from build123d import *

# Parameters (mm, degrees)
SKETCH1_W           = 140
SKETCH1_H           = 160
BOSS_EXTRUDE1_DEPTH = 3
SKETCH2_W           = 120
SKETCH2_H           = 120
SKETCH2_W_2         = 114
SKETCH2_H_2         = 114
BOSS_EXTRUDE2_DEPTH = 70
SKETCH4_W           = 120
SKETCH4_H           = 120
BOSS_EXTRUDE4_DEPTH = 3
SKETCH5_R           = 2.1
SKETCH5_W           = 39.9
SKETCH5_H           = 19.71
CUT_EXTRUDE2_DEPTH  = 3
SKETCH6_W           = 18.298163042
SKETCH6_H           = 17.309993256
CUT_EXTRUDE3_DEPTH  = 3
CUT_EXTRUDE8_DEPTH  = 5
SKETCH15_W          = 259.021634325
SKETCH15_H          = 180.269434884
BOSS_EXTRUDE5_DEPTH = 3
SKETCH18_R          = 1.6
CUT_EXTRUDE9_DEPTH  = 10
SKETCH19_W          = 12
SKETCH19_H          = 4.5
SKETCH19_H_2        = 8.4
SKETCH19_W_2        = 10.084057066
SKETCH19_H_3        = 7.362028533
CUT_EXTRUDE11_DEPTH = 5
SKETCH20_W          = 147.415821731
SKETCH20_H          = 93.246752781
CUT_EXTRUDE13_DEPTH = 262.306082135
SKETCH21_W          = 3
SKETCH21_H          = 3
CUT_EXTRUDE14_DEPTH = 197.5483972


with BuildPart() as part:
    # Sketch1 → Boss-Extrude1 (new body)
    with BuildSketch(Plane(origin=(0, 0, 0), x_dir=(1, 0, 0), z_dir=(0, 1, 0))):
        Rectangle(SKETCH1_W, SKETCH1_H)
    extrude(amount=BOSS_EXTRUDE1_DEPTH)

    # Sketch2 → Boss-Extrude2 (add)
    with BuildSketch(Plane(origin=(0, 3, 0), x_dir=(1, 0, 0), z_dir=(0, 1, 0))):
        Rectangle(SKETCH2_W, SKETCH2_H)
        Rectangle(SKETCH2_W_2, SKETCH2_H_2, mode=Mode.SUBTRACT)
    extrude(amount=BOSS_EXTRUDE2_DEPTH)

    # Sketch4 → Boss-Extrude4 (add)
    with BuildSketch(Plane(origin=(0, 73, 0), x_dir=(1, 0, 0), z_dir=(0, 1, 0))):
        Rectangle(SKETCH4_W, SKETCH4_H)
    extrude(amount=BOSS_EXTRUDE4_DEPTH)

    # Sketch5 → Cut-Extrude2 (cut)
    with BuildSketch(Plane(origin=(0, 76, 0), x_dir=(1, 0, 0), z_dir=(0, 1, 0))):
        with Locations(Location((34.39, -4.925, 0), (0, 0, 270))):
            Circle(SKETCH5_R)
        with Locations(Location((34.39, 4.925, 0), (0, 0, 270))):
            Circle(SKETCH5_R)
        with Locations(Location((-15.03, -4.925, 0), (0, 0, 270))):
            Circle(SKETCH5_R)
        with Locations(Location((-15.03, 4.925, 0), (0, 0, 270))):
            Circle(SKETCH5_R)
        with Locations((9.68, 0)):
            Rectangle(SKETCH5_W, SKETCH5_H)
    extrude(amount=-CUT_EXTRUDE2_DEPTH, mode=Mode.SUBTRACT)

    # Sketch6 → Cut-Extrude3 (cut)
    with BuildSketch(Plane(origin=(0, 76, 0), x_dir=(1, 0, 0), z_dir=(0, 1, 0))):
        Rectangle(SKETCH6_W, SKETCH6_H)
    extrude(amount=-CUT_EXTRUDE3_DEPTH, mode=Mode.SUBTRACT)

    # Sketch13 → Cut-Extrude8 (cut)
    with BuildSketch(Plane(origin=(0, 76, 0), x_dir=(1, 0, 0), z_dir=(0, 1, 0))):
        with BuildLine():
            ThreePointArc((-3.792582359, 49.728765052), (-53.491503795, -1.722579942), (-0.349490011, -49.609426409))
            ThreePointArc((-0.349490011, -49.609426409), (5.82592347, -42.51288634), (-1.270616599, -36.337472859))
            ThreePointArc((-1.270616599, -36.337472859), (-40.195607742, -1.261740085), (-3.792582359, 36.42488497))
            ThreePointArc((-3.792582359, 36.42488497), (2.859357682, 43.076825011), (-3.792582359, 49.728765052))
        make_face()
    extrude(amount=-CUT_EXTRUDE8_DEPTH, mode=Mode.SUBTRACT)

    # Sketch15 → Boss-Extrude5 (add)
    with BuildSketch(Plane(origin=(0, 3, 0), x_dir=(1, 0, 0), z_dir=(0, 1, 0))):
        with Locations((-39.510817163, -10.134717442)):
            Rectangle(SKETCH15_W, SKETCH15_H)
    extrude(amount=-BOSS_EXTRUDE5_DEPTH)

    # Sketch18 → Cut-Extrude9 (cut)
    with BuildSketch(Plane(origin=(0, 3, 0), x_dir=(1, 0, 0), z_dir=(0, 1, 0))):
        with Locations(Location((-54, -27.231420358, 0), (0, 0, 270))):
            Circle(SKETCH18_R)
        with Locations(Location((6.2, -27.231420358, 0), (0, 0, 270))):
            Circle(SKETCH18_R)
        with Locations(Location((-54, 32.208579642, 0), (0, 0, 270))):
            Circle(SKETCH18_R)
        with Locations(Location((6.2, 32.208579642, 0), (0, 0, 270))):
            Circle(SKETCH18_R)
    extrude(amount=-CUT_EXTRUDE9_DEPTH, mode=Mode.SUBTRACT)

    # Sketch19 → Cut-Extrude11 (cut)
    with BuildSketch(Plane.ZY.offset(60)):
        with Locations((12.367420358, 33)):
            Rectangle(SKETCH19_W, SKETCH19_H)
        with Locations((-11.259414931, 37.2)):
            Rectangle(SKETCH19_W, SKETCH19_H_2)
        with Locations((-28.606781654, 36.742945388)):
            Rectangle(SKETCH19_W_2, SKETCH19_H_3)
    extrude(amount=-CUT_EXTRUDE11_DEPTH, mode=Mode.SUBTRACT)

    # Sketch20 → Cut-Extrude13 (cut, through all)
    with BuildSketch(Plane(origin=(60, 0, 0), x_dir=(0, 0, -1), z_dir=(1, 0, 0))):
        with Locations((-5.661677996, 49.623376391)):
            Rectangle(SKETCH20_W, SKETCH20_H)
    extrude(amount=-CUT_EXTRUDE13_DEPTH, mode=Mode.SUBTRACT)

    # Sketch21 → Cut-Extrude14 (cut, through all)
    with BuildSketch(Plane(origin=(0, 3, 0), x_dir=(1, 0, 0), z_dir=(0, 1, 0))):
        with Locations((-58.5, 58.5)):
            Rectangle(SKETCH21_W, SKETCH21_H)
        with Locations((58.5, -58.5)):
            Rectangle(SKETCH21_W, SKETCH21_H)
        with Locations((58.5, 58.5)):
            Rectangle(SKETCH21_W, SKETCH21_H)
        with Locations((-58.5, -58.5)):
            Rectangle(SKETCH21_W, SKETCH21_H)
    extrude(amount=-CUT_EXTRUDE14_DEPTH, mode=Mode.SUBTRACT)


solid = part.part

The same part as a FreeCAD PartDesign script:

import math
import FreeCAD as App
import Part
import Sketcher
Q = App.Units.Quantity


def add_polygon(sketch, points):
    """Adds a closed chain of lines whose ends are joined by coincident constraints."""
    first, n = sketch.GeometryCount, len(points)
    for a, b in zip(points, points[1:] + points[:1]):
        sketch.addGeometry(Part.LineSegment(App.Vector(*a, 0), App.Vector(*b, 0)), False)
    for i in range(n):
        sketch.addConstraint(Sketcher.Constraint("Coincident", first + i, 2, first + (i + 1) % n, 1))

doc = App.newDocument("Part")
params = doc.addObject("Spreadsheet::Sheet", "Params")
for row, (alias, value) in enumerate([
    ("sketch1_width", "140 mm"),
    ("sketch1_height", "160 mm"),
    ("pad1_length", "3 mm"),
    ("sketch2_width", "120 mm"),
    ("sketch2_width2", "114 mm"),
    ("pad2_length", "70 mm"),
    ("sketch3_width", "120 mm"),
    ("pad3_length", "3 mm"),
    ("sketch4_diameter", "4.2 mm"),
    ("sketch4_width", "39.9 mm"),
    ("sketch4_height", "19.71 mm"),
    ("pocket1_length", "3 mm"),
    ("pocket2_length", "3 mm"),
    ("pocket3_length", "5 mm"),
    ("pad4_length", "3 mm"),
    ("sketch8_diameter", "3.2 mm"),
    ("pocket4_length", "10 mm"),
    ("sketch9_height", "12 mm"),
    ("sketch9_width", "4.5 mm"),
    ("sketch9_width2", "8.4 mm"),
    ("pocket5_length", "5 mm"),
    ("sketch11_width", "3 mm"),
], start=1):
    params.set(f"A{row}", alias)
    params.set(f"B{row}", "=" + value)
    params.setAlias(f"B{row}", alias)

body = doc.addObject("PartDesign::Body", "Body")

sketch1 = body.newObject("Sketcher::SketchObject", "Sketch")
sketch1.AttachmentSupport = (doc.getObject("XZ_Plane"), [""])
sketch1.MapMode = "FlatFace"
add_polygon(sketch1, [(-70, -80), (-70, 80), (70, 80), (70, -80)])
sketch1.addConstraint(Sketcher.Constraint("Vertical", 0))
sketch1.addConstraint(Sketcher.Constraint("Horizontal", 1))
sketch1.addConstraint(Sketcher.Constraint("Vertical", 2))
sketch1.addConstraint(Sketcher.Constraint("Horizontal", 3))
sketch1.addConstraint(Sketcher.Constraint("Symmetric", 0, 2, 2, 2, -1, 1))
sketch1.addConstraint(Sketcher.Constraint("DistanceX", 1, 1, 1, 2, Q("140 mm")))
sketch1.addConstraint(Sketcher.Constraint("DistanceY", 0, 1, 0, 2, Q("160 mm")))
sketch1.setExpression("Constraints[9]", "Params.sketch1_width")
sketch1.setExpression("Constraints[10]", "Params.sketch1_height")
pad1 = body.newObject("PartDesign::Pad", "Pad")
pad1.Profile = sketch1
pad1.setExpression("Length", "Params.pad1_length")
pad1.Reversed = True

sketch2 = body.newObject("Sketcher::SketchObject", "Sketch001")
sketch2.AttachmentSupport = (doc.getObject("XZ_Plane"), [""])
sketch2.MapMode = "FlatFace"
sketch2.AttachmentOffset = App.Placement(App.Vector(0, 0, -3), App.Rotation())
add_polygon(sketch2, [(-60, -60), (-60, 60), (60, 60), (60, -60)])
add_polygon(sketch2, [(57, 57), (-57, 57), (-57, -57), (57, -57)])
sketch2.addConstraint(Sketcher.Constraint("Vertical", 0))
sketch2.addConstraint(Sketcher.Constraint("Horizontal", 1))
sketch2.addConstraint(Sketcher.Constraint("Vertical", 2))
sketch2.addConstraint(Sketcher.Constraint("Horizontal", 3))
sketch2.addConstraint(Sketcher.Constraint("Horizontal", 4))
sketch2.addConstraint(Sketcher.Constraint("Vertical", 5))
sketch2.addConstraint(Sketcher.Constraint("Horizontal", 6))
sketch2.addConstraint(Sketcher.Constraint("Vertical", 7))
sketch2.addConstraint(Sketcher.Constraint("Symmetric", 0, 2, 2, 2, -1, 1))
sketch2.addConstraint(Sketcher.Constraint("Symmetric", 4, 2, 6, 2, -1, 1))
sketch2.addConstraint(Sketcher.Constraint("Equal", 3, 0))
sketch2.addConstraint(Sketcher.Constraint("Equal", 6, 5))
sketch2.addConstraint(Sketcher.Constraint("DistanceX", 1, 1, 1, 2, Q("120 mm")))
sketch2.addConstraint(Sketcher.Constraint("DistanceX", 4, 2, 4, 1, Q("114 mm")))
sketch2.setExpression("Constraints[20]", "Params.sketch2_width")
sketch2.setExpression("Constraints[21]", "Params.sketch2_width2")
pad2 = body.newObject("PartDesign::Pad", "Pad001")
pad2.Profile = sketch2
pad2.setExpression("Length", "Params.pad2_length")
pad2.Reversed = True

sketch3 = body.newObject("Sketcher::SketchObject", "Sketch002")
sketch3.AttachmentSupport = (doc.getObject("XZ_Plane"), [""])
sketch3.MapMode = "FlatFace"
sketch3.AttachmentOffset = App.Placement(App.Vector(0, 0, -73), App.Rotation())
add_polygon(sketch3, [(-60, -60), (-60, 60), (60, 60), (60, -60)])
sketch3.addConstraint(Sketcher.Constraint("Vertical", 0))
sketch3.addConstraint(Sketcher.Constraint("Horizontal", 1))
sketch3.addConstraint(Sketcher.Constraint("Vertical", 2))
sketch3.addConstraint(Sketcher.Constraint("Horizontal", 3))
sketch3.addConstraint(Sketcher.Constraint("Symmetric", 0, 2, 2, 2, -1, 1))
sketch3.addConstraint(Sketcher.Constraint("Equal", 3, 0))
sketch3.addConstraint(Sketcher.Constraint("DistanceX", 1, 1, 1, 2, Q("120 mm")))
sketch3.setExpression("Constraints[10]", "Params.sketch3_width")
pad3 = body.newObject("PartDesign::Pad", "Pad002")
pad3.Profile = sketch3
pad3.setExpression("Length", "Params.pad3_length")
pad3.Reversed = True

sketch4 = body.newObject("Sketcher::SketchObject", "Sketch003")
sketch4.AttachmentSupport = (doc.getObject("XZ_Plane"), [""])
sketch4.MapMode = "FlatFace"
sketch4.AttachmentOffset = App.Placement(App.Vector(0, 0, -76), App.Rotation())
sketch4.addGeometry(Part.Circle(App.Vector(34.4, 4.9, 0), App.Vector(0, 0, 1), 2.1), False)
sketch4.addGeometry(Part.Circle(App.Vector(34.4, -4.9, 0), App.Vector(0, 0, 1), 2.1), False)
sketch4.addGeometry(Part.Circle(App.Vector(-15, 4.9, 0), App.Vector(0, 0, 1), 2.1), False)
sketch4.addGeometry(Part.Circle(App.Vector(-15, -4.9, 0), App.Vector(0, 0, 1), 2.1), False)
add_polygon(sketch4, [(-10.3, -9.9), (-10.3, 9.9), (29.6, 9.9), (29.6, -9.9)])
sketch4.addConstraint(Sketcher.Constraint("Vertical", 4))
sketch4.addConstraint(Sketcher.Constraint("Horizontal", 5))
sketch4.addConstraint(Sketcher.Constraint("Vertical", 6))
sketch4.addConstraint(Sketcher.Constraint("Horizontal", 7))
sketch4.addConstraint(Sketcher.Constraint("Equal", 0, 1))
sketch4.addConstraint(Sketcher.Constraint("Equal", 1, 2))
sketch4.addConstraint(Sketcher.Constraint("Equal", 2, 3))
sketch4.addConstraint(Sketcher.Constraint("Symmetric", 0, 3, 1, 3, -1))
sketch4.addConstraint(Sketcher.Constraint("Symmetric", 2, 3, 3, 3, -1))
sketch4.addConstraint(Sketcher.Constraint("Horizontal", 0, 3, 2, 3))
sketch4.addConstraint(Sketcher.Constraint("Diameter", 0, Q("4.2 mm")))
sketch4.addConstraint(Sketcher.Constraint("DistanceX", 5, 1, 5, 2, Q("39.9 mm")))
sketch4.addConstraint(Sketcher.Constraint("DistanceY", 4, 1, 4, 2, Q("19.71 mm")))
sketch4.addConstraint(Sketcher.Constraint("DistanceX", -1, 1, 0, 3, Q("34.39 mm")))
sketch4.addConstraint(Sketcher.Constraint("DistanceX", 2, 3, -1, 1, Q("15.03 mm")))
sketch4.addConstraint(Sketcher.Constraint("DistanceX", 4, 2, -1, 1, Q("10.27 mm")))
sketch4.addConstraint(Sketcher.Constraint("DistanceY", 1, 3, 0, 3, Q("9.85 mm")))
sketch4.addConstraint(Sketcher.Constraint("DistanceY", 2, 3, 4, 2, Q("4.93 mm")))
sketch4.setExpression("Constraints[14]", "Params.sketch4_diameter")
sketch4.setExpression("Constraints[15]", "Params.sketch4_width")
sketch4.setExpression("Constraints[16]", "Params.sketch4_height")
pocket1 = body.newObject("PartDesign::Pocket", "Pocket")
pocket1.Profile = sketch4
pocket1.setExpression("Length", "Params.pocket1_length")
pocket1.Reversed = True

sketch5 = body.newObject("Sketcher::SketchObject", "Sketch004")
sketch5.AttachmentSupport = (doc.getObject("XZ_Plane"), [""])
sketch5.MapMode = "FlatFace"
sketch5.AttachmentOffset = App.Placement(App.Vector(0, 0, -76), App.Rotation())
add_polygon(sketch5, [(-9, -9), (-9, 9), (9, 9), (9, -9)])
sketch5.addConstraint(Sketcher.Constraint("Vertical", 0))
sketch5.addConstraint(Sketcher.Constraint("Horizontal", 1))
sketch5.addConstraint(Sketcher.Constraint("Vertical", 2))
sketch5.addConstraint(Sketcher.Constraint("Horizontal", 3))
sketch5.addConstraint(Sketcher.Constraint("Symmetric", 0, 2, 2, 2, -1, 1))
sketch5.addConstraint(Sketcher.Constraint("DistanceX", 1, 1, 1, 2, Q("18.298163 mm")))
sketch5.addConstraint(Sketcher.Constraint("DistanceY", 0, 1, 0, 2, Q("17.309993 mm")))
pocket2 = body.newObject("PartDesign::Pocket", "Pocket001")
pocket2.Profile = sketch5
pocket2.setExpression("Length", "Params.pocket2_length")
pocket2.Reversed = True

sketch6 = body.newObject("Sketcher::SketchObject", "Sketch005")
sketch6.AttachmentSupport = (doc.getObject("XZ_Plane"), [""])
sketch6.MapMode = "FlatFace"
sketch6.AttachmentOffset = App.Placement(App.Vector(0, 0, -76), App.Rotation())
sketch6.addGeometry(Part.ArcOfCircle(Part.Circle(App.Vector(-4, 0, 0), App.Vector(0, 0, 1), 50), math.radians(86), math.radians(270)), False)
sketch6.addGeometry(Part.ArcOfCircle(Part.Circle(App.Vector(-1, 43, 0), App.Vector(0, 0, 1), 7), math.radians(-94), math.radians(86)), False)
sketch6.addGeometry(Part.ArcOfCircle(Part.Circle(App.Vector(-4, 0, 0), App.Vector(0, 0, 1), 36), math.radians(86), math.radians(270)), False)
sketch6.addGeometry(Part.ArcOfCircle(Part.Circle(App.Vector(-4, -43, 0), App.Vector(0, 0, 1), 7), math.radians(-90), math.radians(90)), False)
sketch6.addConstraint(Sketcher.Constraint("Tangent", 0, 1, 1, 2))
sketch6.addConstraint(Sketcher.Constraint("Tangent", 1, 1, 2, 1))
sketch6.addConstraint(Sketcher.Constraint("Tangent", 2, 2, 3, 2))
sketch6.addConstraint(Sketcher.Constraint("Tangent", 3, 1, 0, 2))
sketch6.addConstraint(Sketcher.Constraint("Coincident", 2, 3, 0, 3))
sketch6.addConstraint(Sketcher.Constraint("PointOnObject", 0, 3, -1))
sketch6.addConstraint(Sketcher.Constraint("Vertical", 2, 3, 3, 3))
sketch6.addConstraint(Sketcher.Constraint("Radius", 1, Q("6.65194 mm")))
sketch6.addConstraint(Sketcher.Constraint("Radius", 0, Q("49.728765 mm")))
sketch6.addConstraint(Sketcher.Constraint("DistanceY", -1, 1, 1, 3, Q("42.97345 mm")))
sketch6.addConstraint(Sketcher.Constraint("DistanceX", 0, 1, -1, 1, Q("0.34949 mm")))
pocket3 = body.newObject("PartDesign::Pocket", "Pocket002")
pocket3.Profile = sketch6
pocket3.setExpression("Length", "Params.pocket3_length")
pocket3.Reversed = True

sketch7 = body.newObject("Sketcher::SketchObject", "Sketch006")
sketch7.AttachmentSupport = (doc.getObject("XZ_Plane"), [""])
sketch7.MapMode = "FlatFace"
sketch7.AttachmentOffset = App.Placement(App.Vector(0, 0, -3), App.Rotation())
add_polygon(sketch7, [(-169, -80), (-169, 100), (90, 100), (90, -80)])
sketch7.addConstraint(Sketcher.Constraint("Vertical", 0))
sketch7.addConstraint(Sketcher.Constraint("Horizontal", 1))
sketch7.addConstraint(Sketcher.Constraint("Vertical", 2))
sketch7.addConstraint(Sketcher.Constraint("Horizontal", 3))
sketch7.addConstraint(Sketcher.Constraint("DistanceX", -1, 1, 1, 2, Q("90 mm")))
sketch7.addConstraint(Sketcher.Constraint("DistanceY", 2, 2, -1, 1, Q("80 mm")))
sketch7.addConstraint(Sketcher.Constraint("DistanceX", 1, 1, 1, 2, Q("259.021634 mm")))
sketch7.addConstraint(Sketcher.Constraint("DistanceY", 0, 1, 0, 2, Q("180.269435 mm")))
pad4 = body.newObject("PartDesign::Pad", "Pad003")
pad4.Profile = sketch7
pad4.setExpression("Length", "Params.pad4_length")

sketch8 = body.newObject("Sketcher::SketchObject", "Sketch007")
sketch8.AttachmentSupport = (doc.getObject("XZ_Plane"), [""])
sketch8.MapMode = "FlatFace"
sketch8.AttachmentOffset = App.Placement(App.Vector(0, 0, -3), App.Rotation())
sketch8.addGeometry(Part.Circle(App.Vector(-54, 27.2, 0), App.Vector(0, 0, 1), 1.6), False)
sketch8.addGeometry(Part.Circle(App.Vector(6.2, 27.2, 0), App.Vector(0, 0, 1), 1.6), False)
sketch8.addGeometry(Part.Circle(App.Vector(-54, -32.2, 0), App.Vector(0, 0, 1), 1.6), False)
sketch8.addGeometry(Part.Circle(App.Vector(6.2, -32.2, 0), App.Vector(0, 0, 1), 1.6), False)
sketch8.addConstraint(Sketcher.Constraint("Equal", 0, 1))
sketch8.addConstraint(Sketcher.Constraint("Equal", 1, 2))
sketch8.addConstraint(Sketcher.Constraint("Equal", 2, 3))
sketch8.addConstraint(Sketcher.Constraint("Horizontal", 0, 3, 1, 3))
sketch8.addConstraint(Sketcher.Constraint("Horizontal", 2, 3, 3, 3))
sketch8.addConstraint(Sketcher.Constraint("Vertical", 0, 3, 2, 3))
sketch8.addConstraint(Sketcher.Constraint("Vertical", 1, 3, 3, 3))
sketch8.addConstraint(Sketcher.Constraint("Diameter", 0, Q("3.2 mm")))
sketch8.addConstraint(Sketcher.Constraint("DistanceX", 0, 3, -1, 1, Q("54 mm")))
sketch8.addConstraint(Sketcher.Constraint("DistanceX", -1, 1, 1, 3, Q("6.2 mm")))
sketch8.addConstraint(Sketcher.Constraint("DistanceY", 2, 3, 0, 3, Q("59.44 mm")))
sketch8.addConstraint(Sketcher.Constraint("DistanceY", -1, 1, 0, 3, Q("27.23142 mm")))
sketch8.setExpression("Constraints[7]", "Params.sketch8_diameter")
pocket4 = body.newObject("PartDesign::Pocket", "Pocket003")
pocket4.Profile = sketch8
pocket4.setExpression("Length", "Params.pocket4_length")
pocket4.Reversed = True

sketch9 = body.newObject("Sketcher::SketchObject", "Sketch008")
sketch9.AttachmentSupport = (doc.getObject("YZ_Plane"), [""])
sketch9.MapMode = "FlatFace"
sketch9.AttachmentOffset = App.Placement(App.Vector(0, 0, -60), App.Rotation())
add_polygon(sketch9, [(35.2, 6.4), (30.8, 6.4), (30.8, 18.4), (35.2, 18.4)])
add_polygon(sketch9, [(41.4, -17.3), (33, -17.3), (33, -5.3), (41.4, -5.3)])
add_polygon(sketch9, [(40.4, -33.6), (33.1, -33.6), (33.1, -23.6), (40.4, -23.6)])
sketch9.addConstraint(Sketcher.Constraint("Horizontal", 0))
sketch9.addConstraint(Sketcher.Constraint("Vertical", 1))
sketch9.addConstraint(Sketcher.Constraint("Horizontal", 2))
sketch9.addConstraint(Sketcher.Constraint("Vertical", 3))
sketch9.addConstraint(Sketcher.Constraint("Horizontal", 4))
sketch9.addConstraint(Sketcher.Constraint("Vertical", 5))
sketch9.addConstraint(Sketcher.Constraint("Horizontal", 6))
sketch9.addConstraint(Sketcher.Constraint("Vertical", 7))
sketch9.addConstraint(Sketcher.Constraint("Horizontal", 8))
sketch9.addConstraint(Sketcher.Constraint("Vertical", 9))
sketch9.addConstraint(Sketcher.Constraint("Horizontal", 10))
sketch9.addConstraint(Sketcher.Constraint("Vertical", 11))
sketch9.addConstraint(Sketcher.Constraint("Equal", 3, 5))
sketch9.addConstraint(Sketcher.Constraint("DistanceY", 1, 1, 1, 2, Q("12 mm")))
sketch9.addConstraint(Sketcher.Constraint("DistanceX", 0, 2, 0, 1, Q("4.5 mm")))
sketch9.addConstraint(Sketcher.Constraint("DistanceX", 4, 2, 4, 1, Q("8.4 mm")))
sketch9.addConstraint(Sketcher.Constraint("DistanceX", -1, 1, 4, 2, Q("33 mm")))
sketch9.addConstraint(Sketcher.Constraint("DistanceX", -1, 1, 0, 2, Q("30.75 mm")))
sketch9.addConstraint(Sketcher.Constraint("DistanceX", 8, 2, 8, 1, Q("7.362029 mm")))
sketch9.addConstraint(Sketcher.Constraint("DistanceY", 9, 1, 9, 2, Q("10.084057 mm")))
sketch9.addConstraint(Sketcher.Constraint("DistanceY", -1, 1, 0, 2, Q("6.36742 mm")))
sketch9.addConstraint(Sketcher.Constraint("DistanceX", -1, 1, 8, 2, Q("33.061931 mm")))
sketch9.addConstraint(Sketcher.Constraint("DistanceY", 8, 2, -1, 1, Q("33.64881 mm")))
sketch9.addConstraint(Sketcher.Constraint("DistanceY", 9, 2, 4, 2, Q("6.305338 mm")))
sketch9.setExpression("Constraints[25]", "Params.sketch9_height")
sketch9.setExpression("Constraints[26]", "Params.sketch9_width")
sketch9.setExpression("Constraints[27]", "Params.sketch9_width2")
pocket5 = body.newObject("PartDesign::Pocket", "Pocket004")
pocket5.Profile = sketch9
pocket5.setExpression("Length", "Params.pocket5_length")
pocket5.Reversed = True

sketch10 = body.newObject("Sketcher::SketchObject", "Sketch009")
sketch10.AttachmentSupport = (doc.getObject("YZ_Plane"), [""])
sketch10.MapMode = "FlatFace"
sketch10.AttachmentOffset = App.Placement(App.Vector(0, 0, 60), App.Rotation())
add_polygon(sketch10, [(96, 79), (3, 79), (3, -68), (96, -68)])
sketch10.addConstraint(Sketcher.Constraint("Horizontal", 0))
sketch10.addConstraint(Sketcher.Constraint("Vertical", 1))
sketch10.addConstraint(Sketcher.Constraint("Horizontal", 2))
sketch10.addConstraint(Sketcher.Constraint("Vertical", 3))
sketch10.addConstraint(Sketcher.Constraint("DistanceX", -1, 1, 0, 2, Q("3 mm")))
sketch10.addConstraint(Sketcher.Constraint("DistanceY", 1, 2, 1, 1, Q("147.415822 mm")))
sketch10.addConstraint(Sketcher.Constraint("DistanceX", 0, 2, 0, 1, Q("93.246753 mm")))
sketch10.addConstraint(Sketcher.Constraint("DistanceY", -1, 1, 0, 2, Q("79.369589 mm")))
pocket6 = body.newObject("PartDesign::Pocket", "Pocket005")
pocket6.Profile = sketch10
pocket6.Type = "ThroughAll"

sketch11 = body.newObject("Sketcher::SketchObject", "Sketch010")
sketch11.AttachmentSupport = (doc.getObject("XZ_Plane"), [""])
sketch11.MapMode = "FlatFace"
sketch11.AttachmentOffset = App.Placement(App.Vector(0, 0, -3), App.Rotation())
add_polygon(sketch11, [(-60, -60), (-60, -57), (-57, -57), (-57, -60)])
add_polygon(sketch11, [(57, 57), (57, 60), (60, 60), (60, 57)])
add_polygon(sketch11, [(57, -60), (57, -57), (60, -57), (60, -60)])
add_polygon(sketch11, [(-60, 57), (-60, 60), (-57, 60), (-57, 57)])
sketch11.addConstraint(Sketcher.Constraint("Vertical", 0))
sketch11.addConstraint(Sketcher.Constraint("Horizontal", 1))
sketch11.addConstraint(Sketcher.Constraint("Vertical", 2))
sketch11.addConstraint(Sketcher.Constraint("Horizontal", 3))
sketch11.addConstraint(Sketcher.Constraint("Vertical", 4))
sketch11.addConstraint(Sketcher.Constraint("Horizontal", 5))
sketch11.addConstraint(Sketcher.Constraint("Vertical", 6))
sketch11.addConstraint(Sketcher.Constraint("Horizontal", 7))
sketch11.addConstraint(Sketcher.Constraint("Vertical", 8))
sketch11.addConstraint(Sketcher.Constraint("Horizontal", 9))
sketch11.addConstraint(Sketcher.Constraint("Vertical", 10))
sketch11.addConstraint(Sketcher.Constraint("Horizontal", 11))
sketch11.addConstraint(Sketcher.Constraint("Vertical", 12))
sketch11.addConstraint(Sketcher.Constraint("Horizontal", 13))
sketch11.addConstraint(Sketcher.Constraint("Vertical", 14))
sketch11.addConstraint(Sketcher.Constraint("Horizontal", 15))
sketch11.addConstraint(Sketcher.Constraint("Symmetric", 2, 2, 4, 2, -1, 1))
sketch11.addConstraint(Sketcher.Constraint("Symmetric", 0, 2, 6, 2, -1, 1))
sketch11.addConstraint(Sketcher.Constraint("Symmetric", 10, 2, 12, 2, -1, 1))
sketch11.addConstraint(Sketcher.Constraint("Symmetric", 8, 2, 14, 2, -1, 1))
sketch11.addConstraint(Sketcher.Constraint("Symmetric", 1, 2, 8, 2, -2))
sketch11.addConstraint(Sketcher.Constraint("Symmetric", 3, 2, 10, 2, -2))
sketch11.addConstraint(Sketcher.Constraint("Equal", 15, 0))
sketch11.addConstraint(Sketcher.Constraint("DistanceX", 1, 1, 1, 2, Q("3 mm")))
sketch11.addConstraint(Sketcher.Constraint("DistanceX", 0, 2, -1, 1, Q("60 mm")))
sketch11.addConstraint(Sketcher.Constraint("DistanceY", 0, 2, -1, 1, Q("57 mm")))
sketch11.setExpression("Constraints[39]", "Params.sketch11_width")
pocket7 = body.newObject("PartDesign::Pocket", "Pocket006")
pocket7.Profile = sketch11
pocket7.Type = "ThroughAll"
pocket7.Reversed = True

doc.recompute()
